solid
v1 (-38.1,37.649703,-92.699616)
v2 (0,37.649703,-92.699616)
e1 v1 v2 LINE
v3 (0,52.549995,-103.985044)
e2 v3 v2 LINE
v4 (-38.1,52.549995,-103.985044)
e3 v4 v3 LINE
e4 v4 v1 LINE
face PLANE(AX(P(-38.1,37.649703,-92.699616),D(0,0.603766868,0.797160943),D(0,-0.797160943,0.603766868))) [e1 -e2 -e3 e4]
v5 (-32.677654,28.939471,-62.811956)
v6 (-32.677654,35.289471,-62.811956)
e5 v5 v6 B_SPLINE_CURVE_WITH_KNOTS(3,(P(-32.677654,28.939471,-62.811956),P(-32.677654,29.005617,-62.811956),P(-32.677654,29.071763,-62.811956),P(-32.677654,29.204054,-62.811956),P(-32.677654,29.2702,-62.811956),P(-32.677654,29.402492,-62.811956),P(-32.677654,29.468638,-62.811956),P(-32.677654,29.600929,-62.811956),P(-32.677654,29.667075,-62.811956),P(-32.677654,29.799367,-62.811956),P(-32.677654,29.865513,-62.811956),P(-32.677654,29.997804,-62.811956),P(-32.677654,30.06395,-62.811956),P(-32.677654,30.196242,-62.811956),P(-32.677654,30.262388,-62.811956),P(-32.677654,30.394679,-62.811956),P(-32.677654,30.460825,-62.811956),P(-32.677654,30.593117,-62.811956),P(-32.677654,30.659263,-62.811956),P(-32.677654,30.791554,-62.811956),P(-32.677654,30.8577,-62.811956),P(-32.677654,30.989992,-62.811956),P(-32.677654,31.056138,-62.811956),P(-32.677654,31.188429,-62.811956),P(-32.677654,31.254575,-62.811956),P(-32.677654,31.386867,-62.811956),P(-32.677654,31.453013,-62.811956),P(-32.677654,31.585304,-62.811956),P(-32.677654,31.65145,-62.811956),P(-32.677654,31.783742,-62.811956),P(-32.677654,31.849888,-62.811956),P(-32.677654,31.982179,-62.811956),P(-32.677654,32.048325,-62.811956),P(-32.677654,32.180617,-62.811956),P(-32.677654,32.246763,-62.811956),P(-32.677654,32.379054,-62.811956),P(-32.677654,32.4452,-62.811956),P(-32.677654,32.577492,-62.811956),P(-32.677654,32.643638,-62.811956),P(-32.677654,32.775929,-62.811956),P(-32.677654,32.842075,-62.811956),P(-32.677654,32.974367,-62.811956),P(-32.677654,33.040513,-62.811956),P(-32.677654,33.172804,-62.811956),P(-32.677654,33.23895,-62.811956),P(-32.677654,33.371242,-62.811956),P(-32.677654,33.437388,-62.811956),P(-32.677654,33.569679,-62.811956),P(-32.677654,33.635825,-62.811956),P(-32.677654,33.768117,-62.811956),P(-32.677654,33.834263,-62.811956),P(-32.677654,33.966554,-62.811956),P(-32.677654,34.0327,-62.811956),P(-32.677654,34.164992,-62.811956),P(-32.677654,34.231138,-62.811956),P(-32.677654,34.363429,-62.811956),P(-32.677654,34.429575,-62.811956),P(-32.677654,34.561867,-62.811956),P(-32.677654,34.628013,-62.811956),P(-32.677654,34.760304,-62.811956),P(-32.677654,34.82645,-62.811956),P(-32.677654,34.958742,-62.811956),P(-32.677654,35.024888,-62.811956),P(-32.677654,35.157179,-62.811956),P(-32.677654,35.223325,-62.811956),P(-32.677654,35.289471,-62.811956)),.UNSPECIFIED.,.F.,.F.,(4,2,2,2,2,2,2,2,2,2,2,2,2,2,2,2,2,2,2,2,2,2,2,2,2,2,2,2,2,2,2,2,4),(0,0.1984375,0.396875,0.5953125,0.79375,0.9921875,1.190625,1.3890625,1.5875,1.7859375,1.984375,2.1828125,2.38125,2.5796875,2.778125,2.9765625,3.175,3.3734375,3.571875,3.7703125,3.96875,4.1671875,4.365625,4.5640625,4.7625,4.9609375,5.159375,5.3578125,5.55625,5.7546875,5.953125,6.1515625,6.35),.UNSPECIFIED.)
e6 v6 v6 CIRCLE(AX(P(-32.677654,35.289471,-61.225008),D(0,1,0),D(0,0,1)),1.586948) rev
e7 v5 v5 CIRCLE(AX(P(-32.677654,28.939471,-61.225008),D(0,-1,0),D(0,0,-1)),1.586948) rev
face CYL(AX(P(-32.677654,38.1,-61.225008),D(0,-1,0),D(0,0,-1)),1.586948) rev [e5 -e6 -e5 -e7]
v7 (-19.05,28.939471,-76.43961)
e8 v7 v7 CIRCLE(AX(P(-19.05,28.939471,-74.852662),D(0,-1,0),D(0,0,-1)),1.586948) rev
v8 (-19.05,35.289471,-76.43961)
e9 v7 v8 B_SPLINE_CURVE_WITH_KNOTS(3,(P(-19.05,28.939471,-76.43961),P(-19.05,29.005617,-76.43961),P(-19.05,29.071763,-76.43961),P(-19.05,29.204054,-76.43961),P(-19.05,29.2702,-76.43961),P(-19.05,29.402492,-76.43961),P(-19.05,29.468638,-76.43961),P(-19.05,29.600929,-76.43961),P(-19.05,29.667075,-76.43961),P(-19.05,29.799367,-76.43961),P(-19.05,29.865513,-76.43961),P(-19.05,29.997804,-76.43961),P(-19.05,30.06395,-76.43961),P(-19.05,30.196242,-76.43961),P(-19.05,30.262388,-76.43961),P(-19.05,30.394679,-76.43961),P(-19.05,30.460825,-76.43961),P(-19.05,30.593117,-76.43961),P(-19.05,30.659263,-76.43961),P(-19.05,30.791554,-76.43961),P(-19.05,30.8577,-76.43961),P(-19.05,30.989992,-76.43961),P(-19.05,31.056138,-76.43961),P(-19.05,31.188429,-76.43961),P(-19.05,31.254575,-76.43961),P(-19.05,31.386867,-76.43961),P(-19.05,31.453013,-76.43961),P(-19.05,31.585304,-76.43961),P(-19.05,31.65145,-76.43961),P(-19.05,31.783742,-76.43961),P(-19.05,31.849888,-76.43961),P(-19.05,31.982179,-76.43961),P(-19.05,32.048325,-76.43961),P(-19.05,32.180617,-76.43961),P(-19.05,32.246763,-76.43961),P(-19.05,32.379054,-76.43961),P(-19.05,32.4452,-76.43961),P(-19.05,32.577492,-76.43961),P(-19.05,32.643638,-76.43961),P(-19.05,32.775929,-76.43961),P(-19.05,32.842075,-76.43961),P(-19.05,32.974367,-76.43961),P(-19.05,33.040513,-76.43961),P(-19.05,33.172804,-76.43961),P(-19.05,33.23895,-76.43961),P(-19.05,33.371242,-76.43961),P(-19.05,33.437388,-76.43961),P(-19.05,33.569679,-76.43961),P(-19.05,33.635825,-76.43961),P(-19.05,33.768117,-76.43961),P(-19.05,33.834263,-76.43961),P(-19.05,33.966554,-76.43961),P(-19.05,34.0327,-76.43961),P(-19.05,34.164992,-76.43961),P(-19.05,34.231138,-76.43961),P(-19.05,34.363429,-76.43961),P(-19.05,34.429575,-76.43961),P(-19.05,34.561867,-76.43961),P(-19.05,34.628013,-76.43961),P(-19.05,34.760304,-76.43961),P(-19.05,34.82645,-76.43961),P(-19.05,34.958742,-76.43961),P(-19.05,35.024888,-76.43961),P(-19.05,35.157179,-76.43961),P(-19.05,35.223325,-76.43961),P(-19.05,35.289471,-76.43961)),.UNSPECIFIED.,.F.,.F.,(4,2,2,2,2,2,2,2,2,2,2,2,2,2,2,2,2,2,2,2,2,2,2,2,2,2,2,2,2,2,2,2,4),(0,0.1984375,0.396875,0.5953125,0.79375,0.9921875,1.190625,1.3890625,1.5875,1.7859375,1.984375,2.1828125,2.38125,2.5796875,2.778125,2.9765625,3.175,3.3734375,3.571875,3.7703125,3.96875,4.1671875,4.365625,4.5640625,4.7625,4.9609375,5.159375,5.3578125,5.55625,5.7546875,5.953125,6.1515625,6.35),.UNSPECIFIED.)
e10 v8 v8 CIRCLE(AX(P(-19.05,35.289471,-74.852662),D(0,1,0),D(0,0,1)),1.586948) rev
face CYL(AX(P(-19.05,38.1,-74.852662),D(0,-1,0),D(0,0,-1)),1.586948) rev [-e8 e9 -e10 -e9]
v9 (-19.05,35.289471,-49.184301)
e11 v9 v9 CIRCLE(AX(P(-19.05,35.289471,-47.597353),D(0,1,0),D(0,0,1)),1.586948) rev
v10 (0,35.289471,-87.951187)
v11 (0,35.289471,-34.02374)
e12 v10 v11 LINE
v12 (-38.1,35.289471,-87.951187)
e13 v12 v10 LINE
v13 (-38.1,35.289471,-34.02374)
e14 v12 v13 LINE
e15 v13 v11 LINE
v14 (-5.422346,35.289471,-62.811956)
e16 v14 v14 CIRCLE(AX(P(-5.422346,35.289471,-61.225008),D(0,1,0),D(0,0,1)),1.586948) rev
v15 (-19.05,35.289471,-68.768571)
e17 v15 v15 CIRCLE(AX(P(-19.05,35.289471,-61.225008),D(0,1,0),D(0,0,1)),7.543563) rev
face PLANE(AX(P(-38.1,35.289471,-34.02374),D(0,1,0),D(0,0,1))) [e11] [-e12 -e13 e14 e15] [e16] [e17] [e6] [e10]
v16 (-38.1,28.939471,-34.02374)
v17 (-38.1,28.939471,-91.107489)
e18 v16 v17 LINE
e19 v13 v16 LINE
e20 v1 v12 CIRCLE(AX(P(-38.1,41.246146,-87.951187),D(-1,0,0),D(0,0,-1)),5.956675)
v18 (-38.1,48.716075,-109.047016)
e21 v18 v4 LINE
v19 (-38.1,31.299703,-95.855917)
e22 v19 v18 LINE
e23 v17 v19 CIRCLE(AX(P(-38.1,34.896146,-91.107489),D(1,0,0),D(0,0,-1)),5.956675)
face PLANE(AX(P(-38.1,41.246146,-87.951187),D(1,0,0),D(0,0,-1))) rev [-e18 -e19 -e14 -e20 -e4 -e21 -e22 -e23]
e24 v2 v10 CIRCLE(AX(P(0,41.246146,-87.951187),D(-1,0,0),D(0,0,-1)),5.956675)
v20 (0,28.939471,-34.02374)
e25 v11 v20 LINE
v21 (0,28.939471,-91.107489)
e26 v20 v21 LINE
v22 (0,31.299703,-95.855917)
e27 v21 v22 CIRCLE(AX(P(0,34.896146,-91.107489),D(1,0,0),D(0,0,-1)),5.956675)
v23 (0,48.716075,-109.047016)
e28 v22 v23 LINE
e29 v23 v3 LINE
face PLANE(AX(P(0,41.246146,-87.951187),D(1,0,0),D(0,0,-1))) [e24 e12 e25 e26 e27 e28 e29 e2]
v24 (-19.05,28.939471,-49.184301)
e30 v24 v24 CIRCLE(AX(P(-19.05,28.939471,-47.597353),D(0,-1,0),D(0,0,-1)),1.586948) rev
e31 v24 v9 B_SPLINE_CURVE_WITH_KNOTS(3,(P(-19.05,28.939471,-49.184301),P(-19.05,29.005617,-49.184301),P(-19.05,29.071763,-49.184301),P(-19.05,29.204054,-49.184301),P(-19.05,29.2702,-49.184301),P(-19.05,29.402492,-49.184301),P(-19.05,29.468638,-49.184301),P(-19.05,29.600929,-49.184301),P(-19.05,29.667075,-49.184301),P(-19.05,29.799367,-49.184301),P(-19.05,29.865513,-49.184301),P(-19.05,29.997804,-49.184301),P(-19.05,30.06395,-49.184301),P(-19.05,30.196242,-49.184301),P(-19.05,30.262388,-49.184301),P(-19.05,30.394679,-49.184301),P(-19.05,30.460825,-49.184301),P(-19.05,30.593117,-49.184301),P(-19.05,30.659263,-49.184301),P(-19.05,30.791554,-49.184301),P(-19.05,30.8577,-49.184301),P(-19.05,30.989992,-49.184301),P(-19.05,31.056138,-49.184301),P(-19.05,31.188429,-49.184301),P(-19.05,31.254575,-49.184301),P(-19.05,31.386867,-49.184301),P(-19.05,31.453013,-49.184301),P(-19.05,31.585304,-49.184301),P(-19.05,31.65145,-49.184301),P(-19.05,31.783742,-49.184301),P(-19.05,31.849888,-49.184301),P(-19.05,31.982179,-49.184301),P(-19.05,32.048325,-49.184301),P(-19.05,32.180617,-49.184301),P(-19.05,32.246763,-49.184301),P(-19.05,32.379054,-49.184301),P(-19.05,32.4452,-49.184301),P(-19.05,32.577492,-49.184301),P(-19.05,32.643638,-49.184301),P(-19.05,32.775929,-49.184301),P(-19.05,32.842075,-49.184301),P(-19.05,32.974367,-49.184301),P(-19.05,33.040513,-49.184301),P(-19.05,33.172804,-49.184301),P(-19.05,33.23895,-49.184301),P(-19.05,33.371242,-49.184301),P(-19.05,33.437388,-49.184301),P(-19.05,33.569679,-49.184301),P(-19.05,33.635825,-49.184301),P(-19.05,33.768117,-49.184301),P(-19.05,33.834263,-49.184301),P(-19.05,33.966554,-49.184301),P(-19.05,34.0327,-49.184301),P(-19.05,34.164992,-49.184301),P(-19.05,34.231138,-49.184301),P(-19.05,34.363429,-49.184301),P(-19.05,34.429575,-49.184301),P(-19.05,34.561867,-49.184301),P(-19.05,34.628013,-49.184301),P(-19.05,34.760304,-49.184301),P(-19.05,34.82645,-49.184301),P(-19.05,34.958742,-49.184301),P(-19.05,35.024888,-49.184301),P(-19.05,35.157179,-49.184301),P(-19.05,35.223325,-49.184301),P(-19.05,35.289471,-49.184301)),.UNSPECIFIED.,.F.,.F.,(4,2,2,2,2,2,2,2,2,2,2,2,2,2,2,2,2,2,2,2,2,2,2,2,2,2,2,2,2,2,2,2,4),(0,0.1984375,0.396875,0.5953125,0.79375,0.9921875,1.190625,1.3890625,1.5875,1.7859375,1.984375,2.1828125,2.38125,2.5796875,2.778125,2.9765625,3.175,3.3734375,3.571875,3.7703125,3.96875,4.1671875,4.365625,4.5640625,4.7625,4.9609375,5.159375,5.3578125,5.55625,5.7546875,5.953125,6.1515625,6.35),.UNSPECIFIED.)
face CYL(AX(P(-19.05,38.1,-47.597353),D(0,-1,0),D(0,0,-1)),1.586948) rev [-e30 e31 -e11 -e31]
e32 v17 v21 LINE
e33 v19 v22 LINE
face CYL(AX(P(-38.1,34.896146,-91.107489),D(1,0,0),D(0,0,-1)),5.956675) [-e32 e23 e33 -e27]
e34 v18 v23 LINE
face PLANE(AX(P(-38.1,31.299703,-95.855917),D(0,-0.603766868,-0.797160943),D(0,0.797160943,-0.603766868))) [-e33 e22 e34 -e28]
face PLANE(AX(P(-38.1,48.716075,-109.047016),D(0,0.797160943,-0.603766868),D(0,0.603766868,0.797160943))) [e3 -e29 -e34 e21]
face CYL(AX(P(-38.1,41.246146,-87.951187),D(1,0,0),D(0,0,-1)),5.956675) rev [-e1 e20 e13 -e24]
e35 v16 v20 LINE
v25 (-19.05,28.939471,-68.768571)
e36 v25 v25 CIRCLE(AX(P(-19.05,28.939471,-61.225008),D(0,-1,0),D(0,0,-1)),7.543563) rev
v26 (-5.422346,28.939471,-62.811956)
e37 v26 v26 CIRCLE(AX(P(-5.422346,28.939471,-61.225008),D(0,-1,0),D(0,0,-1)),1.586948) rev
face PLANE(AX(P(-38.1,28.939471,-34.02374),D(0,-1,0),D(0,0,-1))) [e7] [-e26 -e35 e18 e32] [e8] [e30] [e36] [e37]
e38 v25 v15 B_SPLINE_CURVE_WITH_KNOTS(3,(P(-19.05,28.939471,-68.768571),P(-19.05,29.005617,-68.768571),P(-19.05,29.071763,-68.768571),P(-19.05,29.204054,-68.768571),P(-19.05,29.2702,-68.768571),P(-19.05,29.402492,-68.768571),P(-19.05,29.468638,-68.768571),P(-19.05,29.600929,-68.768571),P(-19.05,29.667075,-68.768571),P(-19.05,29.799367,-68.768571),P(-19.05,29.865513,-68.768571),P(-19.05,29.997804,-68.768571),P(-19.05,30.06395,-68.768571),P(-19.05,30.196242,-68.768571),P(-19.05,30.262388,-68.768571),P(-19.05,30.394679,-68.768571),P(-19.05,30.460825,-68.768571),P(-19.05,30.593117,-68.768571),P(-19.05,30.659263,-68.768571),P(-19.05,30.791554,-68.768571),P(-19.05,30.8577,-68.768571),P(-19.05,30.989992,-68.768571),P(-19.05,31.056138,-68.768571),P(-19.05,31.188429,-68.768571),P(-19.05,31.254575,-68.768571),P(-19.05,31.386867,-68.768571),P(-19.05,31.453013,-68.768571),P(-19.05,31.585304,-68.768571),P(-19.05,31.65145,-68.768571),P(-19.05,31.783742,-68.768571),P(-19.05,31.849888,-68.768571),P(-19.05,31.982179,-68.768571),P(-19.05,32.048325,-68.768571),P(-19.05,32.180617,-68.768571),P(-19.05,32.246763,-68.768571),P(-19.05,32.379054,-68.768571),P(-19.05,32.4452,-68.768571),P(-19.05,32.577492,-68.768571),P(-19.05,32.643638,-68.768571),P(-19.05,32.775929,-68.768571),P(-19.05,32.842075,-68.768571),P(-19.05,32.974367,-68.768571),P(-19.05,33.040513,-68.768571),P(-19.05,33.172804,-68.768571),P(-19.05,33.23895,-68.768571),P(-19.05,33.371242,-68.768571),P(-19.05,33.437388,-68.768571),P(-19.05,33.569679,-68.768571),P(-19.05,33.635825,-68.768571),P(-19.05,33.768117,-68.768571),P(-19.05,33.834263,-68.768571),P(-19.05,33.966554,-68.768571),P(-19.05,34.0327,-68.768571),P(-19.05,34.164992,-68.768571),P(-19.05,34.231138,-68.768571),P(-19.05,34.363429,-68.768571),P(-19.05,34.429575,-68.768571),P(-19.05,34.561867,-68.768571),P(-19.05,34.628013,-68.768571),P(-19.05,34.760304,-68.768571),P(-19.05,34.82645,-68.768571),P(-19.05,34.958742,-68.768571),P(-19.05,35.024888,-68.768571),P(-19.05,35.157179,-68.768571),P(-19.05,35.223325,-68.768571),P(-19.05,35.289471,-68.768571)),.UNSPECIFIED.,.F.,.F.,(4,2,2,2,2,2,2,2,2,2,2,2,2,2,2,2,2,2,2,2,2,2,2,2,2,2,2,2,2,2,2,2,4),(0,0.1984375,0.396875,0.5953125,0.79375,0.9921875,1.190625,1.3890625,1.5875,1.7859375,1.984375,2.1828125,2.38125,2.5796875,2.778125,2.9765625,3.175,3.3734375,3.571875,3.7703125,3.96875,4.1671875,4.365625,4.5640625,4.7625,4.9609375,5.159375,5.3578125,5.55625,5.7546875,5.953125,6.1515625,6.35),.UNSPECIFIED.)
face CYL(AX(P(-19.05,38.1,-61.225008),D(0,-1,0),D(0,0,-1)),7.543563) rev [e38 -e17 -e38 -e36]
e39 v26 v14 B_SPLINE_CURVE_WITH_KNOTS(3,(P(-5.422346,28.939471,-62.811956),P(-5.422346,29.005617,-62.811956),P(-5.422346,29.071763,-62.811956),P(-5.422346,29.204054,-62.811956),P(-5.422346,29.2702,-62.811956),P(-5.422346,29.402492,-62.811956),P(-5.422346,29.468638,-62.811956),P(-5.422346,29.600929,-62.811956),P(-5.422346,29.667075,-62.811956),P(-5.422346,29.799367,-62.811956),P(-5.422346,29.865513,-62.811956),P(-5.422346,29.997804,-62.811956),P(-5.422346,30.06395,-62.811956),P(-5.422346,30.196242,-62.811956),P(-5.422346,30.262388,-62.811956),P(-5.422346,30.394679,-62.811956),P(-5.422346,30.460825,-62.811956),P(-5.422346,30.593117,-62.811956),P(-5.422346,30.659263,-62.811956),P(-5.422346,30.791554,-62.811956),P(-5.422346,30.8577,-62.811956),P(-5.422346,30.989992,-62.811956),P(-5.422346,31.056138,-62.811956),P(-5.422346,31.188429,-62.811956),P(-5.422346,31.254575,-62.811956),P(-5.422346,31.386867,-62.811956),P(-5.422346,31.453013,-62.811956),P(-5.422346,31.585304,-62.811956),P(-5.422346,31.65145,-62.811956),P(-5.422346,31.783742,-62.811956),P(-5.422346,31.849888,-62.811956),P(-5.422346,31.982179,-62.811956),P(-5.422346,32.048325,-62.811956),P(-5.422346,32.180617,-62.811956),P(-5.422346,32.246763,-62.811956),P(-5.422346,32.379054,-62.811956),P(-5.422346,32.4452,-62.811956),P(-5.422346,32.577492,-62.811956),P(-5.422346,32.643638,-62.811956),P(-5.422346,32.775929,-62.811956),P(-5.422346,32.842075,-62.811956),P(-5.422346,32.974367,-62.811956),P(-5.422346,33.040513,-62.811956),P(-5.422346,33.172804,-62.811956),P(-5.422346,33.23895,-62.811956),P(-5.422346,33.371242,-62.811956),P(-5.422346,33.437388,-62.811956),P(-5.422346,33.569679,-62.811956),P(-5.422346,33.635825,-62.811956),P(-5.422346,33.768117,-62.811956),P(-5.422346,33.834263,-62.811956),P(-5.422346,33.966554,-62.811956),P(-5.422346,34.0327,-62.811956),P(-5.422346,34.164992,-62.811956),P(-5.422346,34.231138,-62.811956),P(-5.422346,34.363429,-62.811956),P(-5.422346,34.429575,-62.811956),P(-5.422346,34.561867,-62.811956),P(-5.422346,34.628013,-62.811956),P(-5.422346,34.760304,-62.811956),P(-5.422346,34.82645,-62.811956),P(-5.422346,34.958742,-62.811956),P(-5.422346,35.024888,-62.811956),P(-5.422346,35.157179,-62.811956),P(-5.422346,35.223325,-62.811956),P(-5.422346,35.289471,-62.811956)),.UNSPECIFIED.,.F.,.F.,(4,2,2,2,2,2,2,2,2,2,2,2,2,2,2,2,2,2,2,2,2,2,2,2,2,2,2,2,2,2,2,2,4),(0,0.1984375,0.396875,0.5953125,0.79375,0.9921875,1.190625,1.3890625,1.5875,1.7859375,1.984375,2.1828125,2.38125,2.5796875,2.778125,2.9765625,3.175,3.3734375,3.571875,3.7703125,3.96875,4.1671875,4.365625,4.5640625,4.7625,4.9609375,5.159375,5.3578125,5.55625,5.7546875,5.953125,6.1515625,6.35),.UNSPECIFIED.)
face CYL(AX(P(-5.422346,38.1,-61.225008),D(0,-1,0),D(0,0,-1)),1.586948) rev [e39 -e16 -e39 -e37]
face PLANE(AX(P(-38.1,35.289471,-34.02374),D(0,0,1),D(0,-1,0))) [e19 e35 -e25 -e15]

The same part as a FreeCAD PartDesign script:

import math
import FreeCAD as App
import Part
import Sketcher
Q = App.Units.Quantity

doc = App.newDocument("Part")
body = doc.addObject("PartDesign::Body", "Body")

# Sketch on YZ plane
sketch1 = body.newObject("Sketcher::SketchObject", "Sketch")
sketch1.AttachmentSupport = (doc.getObject("YZ_Plane"), [""])
sketch1.MapMode = "FlatFace"
sketch1.addGeometry(Part.LineSegment(App.Vector(28.939471, -34.02374, 0), App.Vector(28.939471, -91.107489, 0)), False)
sketch1.addGeometry(Part.ArcOfCircle(Part.Circle(App.Vector(34.896146, -91.107489, 0), App.Vector(0, 0, 1), 5.956675), math.radians(-180), math.radians(-127.140159)), False)
sketch1.addGeometry(Part.LineSegment(App.Vector(31.299703, -95.855917, 0), App.Vector(48.716075, -109.047016, 0)), False)
sketch1.addGeometry(Part.LineSegment(App.Vector(48.716075, -109.047016, 0), App.Vector(52.549995, -103.985044, 0)), False)
sketch1.addGeometry(Part.LineSegment(App.Vector(52.549995, -103.985044, 0), App.Vector(37.649703, -92.699616, 0)), False)
sketch1.addGeometry(Part.ArcOfCircle(Part.Circle(App.Vector(41.246146, -87.951187, 0), App.Vector(0, 0, 1), 5.956675), math.radians(-180), math.radians(-127.140159)), False)
sketch1.addGeometry(Part.LineSegment(App.Vector(35.289471, -87.951187, 0), App.Vector(35.289471, -34.02374, 0)), False)
sketch1.addGeometry(Part.LineSegment(App.Vector(35.289471, -34.02374, 0), App.Vector(28.939471, -34.02374, 0)), False)
sketch1.addConstraint(Sketcher.Constraint("Tangent", 0, 2, 1, 1))
sketch1.addConstraint(Sketcher.Constraint("Tangent", 1, 2, 2, 1))
sketch1.addConstraint(Sketcher.Constraint("Coincident", 2, 2, 3, 1))
sketch1.addConstraint(Sketcher.Constraint("Coincident", 3, 2, 4, 1))
sketch1.addConstraint(Sketcher.Constraint("Tangent", 4, 2, 5, 2))
sketch1.addConstraint(Sketcher.Constraint("Tangent", 5, 1, 6, 1))
sketch1.addConstraint(Sketcher.Constraint("Coincident", 6, 2, 7, 1))
sketch1.addConstraint(Sketcher.Constraint("Coincident", 7, 2, 0, 1))
sketch1.addConstraint(Sketcher.Constraint("Vertical", 0))
sketch1.addConstraint(Sketcher.Constraint("Vertical", 6))
sketch1.addConstraint(Sketcher.Constraint("Horizontal", 7))
sketch1.addConstraint(Sketcher.Constraint("Equal", 1, 5))
sketch1.addConstraint(Sketcher.Constraint("Perpendicular", 2, 3))
sketch1.addConstraint(Sketcher.Constraint("Perpendicular", 3, 4))
sketch1.addConstraint(Sketcher.Constraint("DistanceX", 7, 2, 7, 1, Q("0.25 in")))
sketch1.addConstraint(Sketcher.Constraint("Distance", 3, Q("0.25 in")))
sketch1.addConstraint(Sketcher.Constraint("Radius", 1, 5.956675))
sketch1.addConstraint(Sketcher.Constraint("Distance", 2, 21.848))
sketch1.addConstraint(Sketcher.Constraint("Distance", 4, 18.691699))
sketch1.addConstraint(Sketcher.Constraint("DistanceY", 0, 2, 0, 1, 57.083749))
sketch1.addConstraint(Sketcher.Constraint("DistanceY", 1, 3, -1, 1, 91.107489))
sketch1.addConstraint(Sketcher.Constraint("DistanceX", -1, 1, 0, 2, 28.939471))
pad1 = body.newObject("PartDesign::Pad", "Pad")
pad1.Profile = sketch1
pad1.Length = Q("1.5 in")
pad1.Reversed = True

# Sketch on XZ plane
sketch2 = body.newObject("Sketcher::SketchObject", "Sketch001")
sketch2.AttachmentSupport = (doc.getObject("XZ_Plane"), [""])
sketch2.MapMode = "FlatFace"
sketch2.addGeometry(Part.Circle(App.Vector(-19.05, -61.225008, 0), App.Vector(0, 0, 1), 7.543563), False)
sketch2.addGeometry(Part.Circle(App.Vector(-32.677654, -61.225008, 0), App.Vector(0, 0, 1), 1.586948), False)
sketch2.addGeometry(Part.Circle(App.Vector(-19.05, -74.852662, 0), App.Vector(0, 0, 1), 1.586948), False)
sketch2.addGeometry(Part.Circle(App.Vector(-5.422346, -61.225008, 0), App.Vector(0, 0, 1), 1.586948), False)
sketch2.addGeometry(Part.Circle(App.Vector(-19.05, -47.597353, 0), App.Vector(0, 0, 1), 1.586948), False)
sketch2.addConstraint(Sketcher.Constraint("Equal", 1, 2))
sketch2.addConstraint(Sketcher.Constraint("Equal", 2, 3))
sketch2.addConstraint(Sketcher.Constraint("Equal", 3, 4))
sketch2.addConstraint(Sketcher.Constraint("Horizontal", 0, 3, 1, 3))
sketch2.addConstraint(Sketcher.Constraint("Horizontal", 1, 3, 3, 3))
sketch2.addConstraint(Sketcher.Constraint("Vertical", 0, 3, 2, 3))
sketch2.addConstraint(Sketcher.Constraint("Vertical", 2, 3, 4, 3))
sketch2.addConstraint(Sketcher.Constraint("DistanceX", 0, 3, -1, 1, Q("0.75 in")))
sketch2.addConstraint(Sketcher.Constraint("Diameter", 0, 15.087126))
sketch2.addConstraint(Sketcher.Constraint("Diameter", 1, 3.173896))
sketch2.addConstraint(Sketcher.Constraint("DistanceY", 2, 3, -1, 1, 74.852662))
sketch2.addConstraint(Sketcher.Constraint("DistanceX", 1, 3, 3, 3, 27.255309))
sketch2.addConstraint(Sketcher.Constraint("DistanceY", 2, 3, 4, 3, 27.255309))
sketch2.addConstraint(Sketcher.Constraint("DistanceY", 0, 3, -1, 1, 61.225008))
sketch2.addConstraint(Sketcher.Constraint("DistanceX", 1, 3, -1, 1, 32.677654))
pocket1 = body.newObject("PartDesign::Pocket", "Pocket")
pocket1.Profile = sketch2
pocket1.Length = Q("1.5 in")

doc.recompute()
